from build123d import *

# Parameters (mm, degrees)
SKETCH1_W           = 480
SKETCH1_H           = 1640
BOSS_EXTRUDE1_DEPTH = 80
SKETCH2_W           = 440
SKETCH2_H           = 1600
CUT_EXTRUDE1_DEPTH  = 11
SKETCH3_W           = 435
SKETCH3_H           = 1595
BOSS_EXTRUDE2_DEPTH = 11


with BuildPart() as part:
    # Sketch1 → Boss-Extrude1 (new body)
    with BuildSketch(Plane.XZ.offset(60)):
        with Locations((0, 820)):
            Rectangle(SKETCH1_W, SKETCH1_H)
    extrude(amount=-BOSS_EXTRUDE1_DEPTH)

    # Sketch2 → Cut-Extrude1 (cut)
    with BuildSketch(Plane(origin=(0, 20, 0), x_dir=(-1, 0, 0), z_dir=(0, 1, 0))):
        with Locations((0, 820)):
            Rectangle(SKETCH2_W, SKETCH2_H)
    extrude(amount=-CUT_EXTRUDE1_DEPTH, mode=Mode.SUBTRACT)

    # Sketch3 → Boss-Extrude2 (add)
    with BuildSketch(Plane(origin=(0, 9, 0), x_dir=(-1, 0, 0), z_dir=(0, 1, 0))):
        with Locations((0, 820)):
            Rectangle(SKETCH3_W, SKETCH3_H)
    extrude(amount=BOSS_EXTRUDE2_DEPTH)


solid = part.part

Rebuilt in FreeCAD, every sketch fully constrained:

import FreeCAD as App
import Part
import Sketcher
from FreeCAD import Vector

doc = App.newDocument("Part")
body = doc.addObject("PartDesign::Body", "Body")

sketch1 = body.newObject("Sketcher::SketchObject", "Sketch")
sketch1.AttachmentSupport = (doc.getObject("XZ_Plane"), [""])
sketch1.MapMode = "FlatFace"
sketch1.AttachmentOffset = App.Placement(Vector(0, 0, 60), App.Rotation())
sketch1.addGeometry([
    Part.LineSegment(Vector(-240, 1640, 0), Vector(-240, 0, 0)),
    Part.LineSegment(Vector(-240, 0, 0), Vector(240, 0, 0)),
    Part.LineSegment(Vector(240, 0, 0), Vector(240, 1640, 0)),
    Part.LineSegment(Vector(240, 1640, 0), Vector(-240, 1640, 0)),
], False)
sketch1.addConstraint([
    Sketcher.Constraint("Coincident", 0, 2, 1, 1),
    Sketcher.Constraint("Coincident", 1, 2, 2, 1),
    Sketcher.Constraint("Coincident", 2, 2, 3, 1),
    Sketcher.Constraint("Coincident", 3, 2, 0, 1),
    Sketcher.Constraint("Vertical", 0),
    Sketcher.Constraint("Horizontal", 1),
    Sketcher.Constraint("Vertical", 2),
    Sketcher.Constraint("Horizontal", 3),
    Sketcher.Constraint("Symmetric", 0, 2, 1, 2, -1, 1),
    Sketcher.Constraint("DistanceX", 1, 1, 1, 2, 480.0),
    Sketcher.Constraint("DistanceY", 0, 2, 0, 1, 1640.0),
])
pad1 = body.newObject("PartDesign::Pad", "Pad")
pad1.Profile = sketch1
pad1.Length = 80
pad1.Reversed = True

sketch2 = body.newObject("Sketcher::SketchObject", "Sketch001")
sketch2.AttachmentSupport = (doc.getObject("XZ_Plane"), [""])
sketch2.MapMode = "FlatFace"
sketch2.AttachmentOffset = App.Placement(Vector(0, 0, -20), App.Rotation())
sketch2.addGeometry([
    Part.LineSegment(Vector(220, 1620, 0), Vector(220, 20, 0)),
    Part.LineSegment(Vector(220, 20, 0), Vector(-220, 20, 0)),
    Part.LineSegment(Vector(-220, 20, 0), Vector(-220, 1620, 0)),
    Part.LineSegment(Vector(-220, 1620, 0), Vector(220, 1620, 0)),
], False)
sketch2.addConstraint([
    Sketcher.Constraint("Coincident", 0, 2, 1, 1),
    Sketcher.Constraint("Coincident", 1, 2, 2, 1),
    Sketcher.Constraint("Coincident", 2, 2, 3, 1),
    Sketcher.Constraint("Coincident", 3, 2, 0, 1),
    Sketcher.Constraint("Vertical", 0),
    Sketcher.Constraint("Horizontal", 1),
    Sketcher.Constraint("Vertical", 2),
    Sketcher.Constraint("Horizontal", 3),
    Sketcher.Constraint("DistanceX", 1, 2, 1, 1, 440.0),
    Sketcher.Constraint("DistanceY", 0, 2, 0, 1, 1600.0),
    Sketcher.Constraint("DistanceX", -1, 1, 0, 2, 220.0),
    Sketcher.Constraint("DistanceY", -1, 1, 0, 2, 20.0),
])
pocket1 = body.newObject("PartDesign::Pocket", "Pocket")
pocket1.Profile = sketch2
pocket1.Length = 11
pocket1.Reversed = True

sketch3 = body.newObject("Sketcher::SketchObject", "Sketch002")
sketch3.AttachmentSupport = (doc.getObject("XZ_Plane"), [""])
sketch3.MapMode = "FlatFace"
sketch3.AttachmentOffset = App.Placement(Vector(0, 0, -9), App.Rotation())
sketch3.addGeometry([
    Part.LineSegment(Vector(218, 1618, 0), Vector(218, 22, 0)),
    Part.LineSegment(Vector(218, 22, 0), Vector(-218, 22, 0)),
    Part.LineSegment(Vector(-218, 22, 0), Vector(-218, 1618, 0)),
    Part.LineSegment(Vector(-218, 1618, 0), Vector(218, 1618, 0)),
], False)
sketch3.addConstraint([
    Sketcher.Constraint("Coincident", 0, 2, 1, 1),
    Sketcher.Constraint("Coincident", 1, 2, 2, 1),
    Sketcher.Constraint("Coincident", 2, 2, 3, 1),
    Sketcher.Constraint("Coincident", 3, 2, 0, 1),
    Sketcher.Constraint("Vertical", 0),
    Sketcher.Constraint("Horizontal", 1),
    Sketcher.Constraint("Vertical", 2),
    Sketcher.Constraint("Horizontal", 3),
    Sketcher.Constraint("DistanceX", 1, 2, 1, 1, 435.0),
    Sketcher.Constraint("DistanceY", 0, 2, 0, 1, 1595.0),
    Sketcher.Constraint("DistanceX", -1, 1, 0, 2, 217.5),
    Sketcher.Constraint("DistanceY", -1, 1, 0, 2, 22.5),
])
pad2 = body.newObject("PartDesign::Pad", "Pad001")
pad2.Profile = sketch3
pad2.Length = 11
pad2.Reversed = True

doc.recompute()
